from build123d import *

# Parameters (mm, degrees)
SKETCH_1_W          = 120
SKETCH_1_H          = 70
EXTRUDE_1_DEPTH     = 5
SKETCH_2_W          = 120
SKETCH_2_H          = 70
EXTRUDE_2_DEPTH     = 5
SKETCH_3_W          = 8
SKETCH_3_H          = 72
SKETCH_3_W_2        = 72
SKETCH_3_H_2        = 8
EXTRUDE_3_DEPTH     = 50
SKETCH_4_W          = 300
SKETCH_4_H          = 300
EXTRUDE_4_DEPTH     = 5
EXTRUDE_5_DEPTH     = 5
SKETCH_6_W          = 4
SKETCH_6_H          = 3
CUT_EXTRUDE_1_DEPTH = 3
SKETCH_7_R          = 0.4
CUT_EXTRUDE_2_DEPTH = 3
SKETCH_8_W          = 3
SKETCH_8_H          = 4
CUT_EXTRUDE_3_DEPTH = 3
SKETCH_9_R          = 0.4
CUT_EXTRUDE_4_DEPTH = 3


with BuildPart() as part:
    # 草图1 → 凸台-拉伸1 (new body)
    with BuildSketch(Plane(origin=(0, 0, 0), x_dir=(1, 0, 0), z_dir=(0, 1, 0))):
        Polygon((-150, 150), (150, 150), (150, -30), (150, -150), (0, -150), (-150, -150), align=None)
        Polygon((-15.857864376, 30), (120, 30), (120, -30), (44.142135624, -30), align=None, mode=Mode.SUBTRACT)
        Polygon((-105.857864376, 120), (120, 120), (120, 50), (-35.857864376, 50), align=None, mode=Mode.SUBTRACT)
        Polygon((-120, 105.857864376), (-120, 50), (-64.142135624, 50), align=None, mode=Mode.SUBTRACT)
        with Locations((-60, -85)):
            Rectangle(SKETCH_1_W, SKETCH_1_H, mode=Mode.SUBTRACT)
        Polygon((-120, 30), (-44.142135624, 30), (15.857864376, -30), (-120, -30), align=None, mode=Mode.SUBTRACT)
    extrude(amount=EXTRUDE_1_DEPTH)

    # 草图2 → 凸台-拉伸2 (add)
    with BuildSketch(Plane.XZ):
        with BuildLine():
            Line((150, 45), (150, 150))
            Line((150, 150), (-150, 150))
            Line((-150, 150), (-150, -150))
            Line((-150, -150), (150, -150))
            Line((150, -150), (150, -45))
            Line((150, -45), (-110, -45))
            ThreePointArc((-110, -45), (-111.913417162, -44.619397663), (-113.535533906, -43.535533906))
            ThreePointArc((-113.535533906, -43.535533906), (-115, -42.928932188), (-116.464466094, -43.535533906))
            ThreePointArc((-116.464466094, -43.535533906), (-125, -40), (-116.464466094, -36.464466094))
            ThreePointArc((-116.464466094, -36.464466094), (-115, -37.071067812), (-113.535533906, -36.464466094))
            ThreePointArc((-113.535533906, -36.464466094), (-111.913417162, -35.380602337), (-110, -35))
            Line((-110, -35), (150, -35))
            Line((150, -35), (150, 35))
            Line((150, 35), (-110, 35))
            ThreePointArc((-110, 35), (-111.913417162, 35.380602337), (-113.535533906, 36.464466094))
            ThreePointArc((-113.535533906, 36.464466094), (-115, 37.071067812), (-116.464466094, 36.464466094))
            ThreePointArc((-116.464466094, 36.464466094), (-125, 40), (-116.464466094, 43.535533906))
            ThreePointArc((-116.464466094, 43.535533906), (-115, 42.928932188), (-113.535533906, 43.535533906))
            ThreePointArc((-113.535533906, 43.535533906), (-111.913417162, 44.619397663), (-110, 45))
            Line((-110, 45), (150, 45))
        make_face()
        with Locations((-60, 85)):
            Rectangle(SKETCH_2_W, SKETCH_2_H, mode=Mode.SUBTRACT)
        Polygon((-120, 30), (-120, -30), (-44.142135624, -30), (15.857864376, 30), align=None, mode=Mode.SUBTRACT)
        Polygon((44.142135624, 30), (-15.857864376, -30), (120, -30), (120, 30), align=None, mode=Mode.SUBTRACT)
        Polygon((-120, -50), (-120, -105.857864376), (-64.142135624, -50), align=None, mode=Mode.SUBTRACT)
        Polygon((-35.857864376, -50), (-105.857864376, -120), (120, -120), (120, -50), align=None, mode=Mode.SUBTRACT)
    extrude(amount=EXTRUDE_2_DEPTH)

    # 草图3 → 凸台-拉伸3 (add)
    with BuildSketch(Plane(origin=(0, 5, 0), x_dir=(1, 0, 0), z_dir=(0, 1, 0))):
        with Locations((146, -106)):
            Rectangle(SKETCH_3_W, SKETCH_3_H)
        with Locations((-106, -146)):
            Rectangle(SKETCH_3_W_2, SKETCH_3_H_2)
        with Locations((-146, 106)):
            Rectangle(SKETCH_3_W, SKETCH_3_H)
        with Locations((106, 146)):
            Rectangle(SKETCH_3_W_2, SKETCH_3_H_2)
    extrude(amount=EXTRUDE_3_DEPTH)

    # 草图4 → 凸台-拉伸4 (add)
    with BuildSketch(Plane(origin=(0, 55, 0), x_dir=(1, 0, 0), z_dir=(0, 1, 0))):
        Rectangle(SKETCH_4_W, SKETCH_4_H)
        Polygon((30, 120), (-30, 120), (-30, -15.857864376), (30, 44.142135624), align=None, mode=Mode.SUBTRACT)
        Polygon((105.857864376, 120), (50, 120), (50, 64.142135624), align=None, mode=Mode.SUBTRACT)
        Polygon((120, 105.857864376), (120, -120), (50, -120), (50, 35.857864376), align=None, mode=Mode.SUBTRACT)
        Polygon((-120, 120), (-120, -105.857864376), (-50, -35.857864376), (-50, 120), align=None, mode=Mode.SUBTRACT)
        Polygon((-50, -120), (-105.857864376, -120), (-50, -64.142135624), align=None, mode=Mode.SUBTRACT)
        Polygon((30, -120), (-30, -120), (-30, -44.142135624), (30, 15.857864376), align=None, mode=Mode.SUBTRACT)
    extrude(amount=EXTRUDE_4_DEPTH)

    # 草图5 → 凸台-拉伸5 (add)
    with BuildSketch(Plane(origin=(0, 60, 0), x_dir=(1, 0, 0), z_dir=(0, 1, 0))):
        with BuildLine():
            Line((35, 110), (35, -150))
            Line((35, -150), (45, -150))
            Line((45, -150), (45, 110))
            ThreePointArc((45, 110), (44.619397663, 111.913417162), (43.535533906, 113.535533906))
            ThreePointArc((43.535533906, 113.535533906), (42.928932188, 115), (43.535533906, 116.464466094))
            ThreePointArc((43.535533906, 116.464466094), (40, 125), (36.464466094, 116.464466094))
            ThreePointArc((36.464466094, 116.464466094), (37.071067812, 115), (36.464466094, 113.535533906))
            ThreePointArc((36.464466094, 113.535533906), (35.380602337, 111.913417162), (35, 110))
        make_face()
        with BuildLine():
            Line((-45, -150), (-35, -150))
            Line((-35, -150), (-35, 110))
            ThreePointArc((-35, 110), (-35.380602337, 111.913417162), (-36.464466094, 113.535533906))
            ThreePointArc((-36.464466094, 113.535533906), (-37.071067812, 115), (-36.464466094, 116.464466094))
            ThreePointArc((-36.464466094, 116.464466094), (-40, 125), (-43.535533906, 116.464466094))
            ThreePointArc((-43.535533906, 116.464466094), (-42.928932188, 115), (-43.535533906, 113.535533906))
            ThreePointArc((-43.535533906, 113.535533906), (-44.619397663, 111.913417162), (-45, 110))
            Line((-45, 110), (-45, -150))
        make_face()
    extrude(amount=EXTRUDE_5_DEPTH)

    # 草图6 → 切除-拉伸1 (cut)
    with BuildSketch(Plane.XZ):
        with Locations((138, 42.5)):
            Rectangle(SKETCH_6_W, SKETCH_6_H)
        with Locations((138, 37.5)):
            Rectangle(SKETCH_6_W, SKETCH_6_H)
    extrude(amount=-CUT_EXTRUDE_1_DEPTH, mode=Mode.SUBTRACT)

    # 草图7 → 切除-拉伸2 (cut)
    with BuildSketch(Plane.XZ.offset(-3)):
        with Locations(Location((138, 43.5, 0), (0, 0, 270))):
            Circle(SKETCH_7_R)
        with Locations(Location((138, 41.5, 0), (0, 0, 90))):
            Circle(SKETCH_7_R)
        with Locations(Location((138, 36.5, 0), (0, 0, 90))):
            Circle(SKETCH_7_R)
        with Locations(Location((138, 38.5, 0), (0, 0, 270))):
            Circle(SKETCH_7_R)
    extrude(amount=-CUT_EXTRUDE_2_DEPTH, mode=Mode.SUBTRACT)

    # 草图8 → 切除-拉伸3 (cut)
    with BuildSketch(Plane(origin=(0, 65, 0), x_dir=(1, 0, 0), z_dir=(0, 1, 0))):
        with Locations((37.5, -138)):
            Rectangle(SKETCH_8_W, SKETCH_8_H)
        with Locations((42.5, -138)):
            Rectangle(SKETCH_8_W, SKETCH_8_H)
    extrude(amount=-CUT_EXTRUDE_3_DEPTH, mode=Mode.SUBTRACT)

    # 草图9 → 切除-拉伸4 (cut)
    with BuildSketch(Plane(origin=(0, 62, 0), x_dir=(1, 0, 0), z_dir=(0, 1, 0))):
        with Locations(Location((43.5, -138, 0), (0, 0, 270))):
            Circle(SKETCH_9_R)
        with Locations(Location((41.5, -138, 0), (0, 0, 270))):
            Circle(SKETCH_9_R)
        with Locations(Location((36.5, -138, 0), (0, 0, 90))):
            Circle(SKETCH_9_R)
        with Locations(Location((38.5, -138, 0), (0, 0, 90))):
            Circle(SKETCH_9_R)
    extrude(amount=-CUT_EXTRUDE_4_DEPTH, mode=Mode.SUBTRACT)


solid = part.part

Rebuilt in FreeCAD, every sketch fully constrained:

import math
import FreeCAD as App
import Part
import Sketcher

V = App.Vector
Q = App.Units.Quantity


def add_polygon(sketch, points):
    """Adds a closed chain of lines whose ends are joined by coincident constraints."""
    first, n = sketch.GeometryCount, len(points)
    for a, b in zip(points, points[1:] + points[:1]):
        sketch.addGeometry(Part.LineSegment(App.Vector(*a, 0), App.Vector(*b, 0)), False)
    for i in range(n):
        sketch.addConstraint(Sketcher.Constraint("Coincident", first + i, 2, first + (i + 1) % n, 1))

doc = App.newDocument("Part")
params = doc.addObject("Spreadsheet::Sheet", "Params")
for row, (alias, value) in enumerate([
    ("sketch1_width", "300 mm"),
    ("sketch1_width2", "120 mm"),
    ("sketch1_height", "70 mm"),
    ("sketch1_height2", "60 mm"),
    ("pad1_length", "5 mm"),
    ("sketch2_radius", "5 mm"),
    ("sketch2_width", "300 mm"),
    ("sketch2_width2", "260 mm"),
    ("sketch2_width3", "120 mm"),
    ("sketch2_height", "105 mm"),
    ("pad2_length", "5 mm"),
    ("sketch3_width", "8 mm"),
    ("sketch3_width2", "72 mm"),
    ("pad3_length", "50 mm"),
    ("sketch4_width", "300 mm"),
    ("sketch4_width2", "60 mm"),
    ("sketch4_width3", "70 mm"),
    ("pad4_length", "5 mm"),
    ("sketch5_radius", "5 mm"),
    ("sketch5_height", "260 mm"),
    ("pad5_length", "5 mm"),
    ("sketch6_width", "4 mm"),
    ("sketch6_height", "3 mm"),
    ("pocket1_length", "3 mm"),
    ("sketch7_diameter", "0.8 mm"),
    ("pocket2_length", "3 mm"),
    ("sketch8_width", "3 mm"),
    ("sketch8_height", "4 mm"),
    ("pocket3_length", "3 mm"),
    ("sketch9_diameter", "0.8 mm"),
    ("pocket4_length", "3 mm"),
], start=1):
    params.set(f"A{row}", alias)
    params.set(f"B{row}", "=" + value)
    params.setAlias(f"B{row}", alias)

body = doc.addObject("PartDesign::Body", "Body")

sketch1 = doc.addObject("Sketcher::SketchObject", "Sketch")
body.addObject(sketch1)
sketch1.AttachmentSupport = (doc.XZ_Plane, [""])
sketch1.MapMode = "FlatFace"
add_polygon(sketch1, [(150, -150), (-150, -150), (-150, 150), (150, 150)])
add_polygon(sketch1, [(-120, 120), (-120, 50), (0, 50), (0, 120)])
add_polygon(sketch1, [(-16, -30), (120, -30), (120, 30), (44, 30)])
add_polygon(sketch1, [(-106, -120), (120, -120), (120, -50), (-36, -50)])
add_polygon(sketch1, [(-120, -30), (-44, -30), (16, 30), (-120, 30)])
add_polygon(sketch1, [(-120, -106), (-64, -50), (-120, -50)])
sketch1.addConstraint(Sketcher.Constraint("Horizontal", 0))
sketch1.addConstraint(Sketcher.Constraint("Vertical", 1))
sketch1.addConstraint(Sketcher.Constraint("Horizontal", 2))
sketch1.addConstraint(Sketcher.Constraint("Vertical", 3))
sketch1.addConstraint(Sketcher.Constraint("Vertical", 4))
sketch1.addConstraint(Sketcher.Constraint("Horizontal", 5))
sketch1.addConstraint(Sketcher.Constraint("Vertical", 6))
sketch1.addConstraint(Sketcher.Constraint("Horizontal", 7))
sketch1.addConstraint(Sketcher.Constraint("Horizontal", 8))
sketch1.addConstraint(Sketcher.Constraint("Vertical", 9))
sketch1.addConstraint(Sketcher.Constraint("Horizontal", 10))
sketch1.addConstraint(Sketcher.Constraint("Horizontal", 12))
sketch1.addConstraint(Sketcher.Constraint("Vertical", 13))
sketch1.addConstraint(Sketcher.Constraint("Horizontal", 14))
sketch1.addConstraint(Sketcher.Constraint("Horizontal", 16))
sketch1.addConstraint(Sketcher.Constraint("Horizontal", 18))
sketch1.addConstraint(Sketcher.Constraint("Vertical", 19))
sketch1.addConstraint(Sketcher.Constraint("Horizontal", 21))
sketch1.addConstraint(Sketcher.Constraint("Vertical", 22))
sketch1.addConstraint(Sketcher.Constraint("Symmetric", 0, 2, 2, 2, -1, 1))
sketch1.addConstraint(Sketcher.Constraint("Symmetric", 7, 2, 12, 2, -1, 1))
sketch1.addConstraint(Sketcher.Constraint("Symmetric", 10, 2, 16, 2, -1, 1))
sketch1.addConstraint(Sketcher.Constraint("Symmetric", 11, 2, 17, 2, -1, 1))
sketch1.addConstraint(Sketcher.Constraint("Symmetric", 9, 2, 18, 2, -2))
sketch1.addConstraint(Sketcher.Constraint("Symmetric", 13, 2, 21, 2, -2))
sketch1.addConstraint(Sketcher.Constraint("PointOnObject", 5, 2, -2))
sketch1.addConstraint(Sketcher.Constraint("Parallel", 11, 15))
sketch1.addConstraint(Sketcher.Constraint("Parallel", 17, 20))
sketch1.addConstraint(Sketcher.Constraint("Vertical", 9, 2, 12, 2))
sketch1.addConstraint(Sketcher.Constraint("Equal", 2, 1))
sketch1.addConstraint(Sketcher.Constraint("Equal", 6, 13))
sketch1.addConstraint(Sketcher.Constraint("Equal", 21, 22))
sketch1.addConstraint(Sketcher.Constraint("DistanceX", 0, 2, 0, 1, Q("300 mm")))
sketch1.addConstraint(Sketcher.Constraint("DistanceX", 5, 1, 5, 2, Q("120 mm")))
sketch1.addConstraint(Sketcher.Constraint("DistanceY", 4, 2, 4, 1, Q("70 mm")))
sketch1.addConstraint(Sketcher.Constraint("DistanceY", 9, 1, 9, 2, Q("60 mm")))
sketch1.addConstraint(Sketcher.Constraint("DistanceY", -1, 1, 4, 2, Q("50 mm")))
sketch1.addConstraint(Sketcher.Constraint("DistanceX", 14, 2, 11, 2, Q("20 mm")))
sketch1.addConstraint(Sketcher.Constraint("DistanceX", 20, 2, 16, 2, Q("20 mm")))
sketch1.addConstraint(Sketcher.Constraint("Distance", 20, Q("78.994949 mm")))
sketch1.setExpression("Constraints[55]", "Params.sketch1_width")
sketch1.setExpression("Constraints[56]", "Params.sketch1_width2")
sketch1.setExpression("Constraints[57]", "Params.sketch1_height")
sketch1.setExpression("Constraints[58]", "Params.sketch1_height2")
pad1 = doc.addObject("PartDesign::Pad", "Pad")
body.addObject(pad1)
pad1.Profile = sketch1
pad1.setExpression("Length", "Params.pad1_length")
pad1.Reversed = True

sketch2 = doc.addObject("Sketcher::SketchObject", "Sketch001")
body.addObject(sketch2)
sketch2.AttachmentSupport = (doc.XZ_Plane, [""])
sketch2.MapMode = "FlatFace"
sketch2.addGeometry(Part.LineSegment(V(150, 45, 0), V(150, 150, 0)), False)
sketch2.addGeometry(Part.LineSegment(V(150, 150, 0), V(-150, 150, 0)), False)
sketch2.addGeometry(Part.LineSegment(V(-150, 150, 0), V(-150, -150, 0)), False)
sketch2.addGeometry(Part.LineSegment(V(-150, -150, 0), V(150, -150, 0)), False)
sketch2.addGeometry(Part.LineSegment(V(150, -150, 0), V(150, -45, 0)), False)
sketch2.addGeometry(Part.LineSegment(V(150, -45, 0), V(-110, -45, 0)), False)
sketch2.addGeometry(Part.ArcOfCircle(Part.Circle(V(-110, -40, 0), V(0, 0, 1), 5), math.radians(-135), math.radians(-90)), False)
sketch2.addGeometry(Part.ArcOfCircle(Part.Circle(V(-115, -45, 0), V(0, 0, 1), 2.1), math.radians(45), math.radians(135)), False)
sketch2.addGeometry(Part.ArcOfCircle(Part.Circle(V(-120, -40, 0), V(0, 0, 1), 5), math.radians(45), math.radians(315)), False)
sketch2.addGeometry(Part.ArcOfCircle(Part.Circle(V(-115, -35, 0), V(0, 0, 1), 2.1), math.radians(-135), math.radians(-45)), False)
sketch2.addGeometry(Part.ArcOfCircle(Part.Circle(V(-110, -40, 0), V(0, 0, 1), 5), math.radians(90), math.radians(135)), False)
sketch2.addGeometry(Part.LineSegment(V(-110, -35, 0), V(150, -35, 0)), False)
sketch2.addGeometry(Part.LineSegment(V(150, -35, 0), V(150, 35, 0)), False)
sketch2.addGeometry(Part.LineSegment(V(150, 35, 0), V(-110, 35, 0)), False)
sketch2.addGeometry(Part.ArcOfCircle(Part.Circle(V(-110, 40, 0), V(0, 0, 1), 5), math.radians(-135), math.radians(-90)), False)
sketch2.addGeometry(Part.ArcOfCircle(Part.Circle(V(-115, 35, 0), V(0, 0, 1), 2.1), math.radians(45), math.radians(135)), False)
sketch2.addGeometry(Part.ArcOfCircle(Part.Circle(V(-120, 40, 0), V(0, 0, 1), 5), math.radians(45), math.radians(315)), False)
sketch2.addGeometry(Part.ArcOfCircle(Part.Circle(V(-115, 45, 0), V(0, 0, 1), 2.1), math.radians(-135), math.radians(-45)), False)
sketch2.addGeometry(Part.ArcOfCircle(Part.Circle(V(-110, 40, 0), V(0, 0, 1), 5), math.radians(90), math.radians(135)), False)
sketch2.addGeometry(Part.LineSegment(V(-110, 45, 0), V(150, 45, 0)), False)
add_polygon(sketch2, [(-120, -105.9), (-120, -50), (-64.1, -50)])
add_polygon(sketch2, [(-105.9, -120), (-35.9, -50), (120, -50), (120, -120)])
add_polygon(sketch2, [(-120, -30), (-120, 30), (15.9, 30), (-44.1, -30)])
add_polygon(sketch2, [(0, 50), (-120, 50), (-120, 120), (0, 120)])
add_polygon(sketch2, [(-15.9, -30), (44.1, 30), (120, 30), (120, -30)])
sketch2.addConstraint(Sketcher.Constraint("Coincident", 0, 2, 1, 1))
sketch2.addConstraint(Sketcher.Constraint("Coincident", 1, 2, 2, 1))
sketch2.addConstraint(Sketcher.Constraint("Coincident", 2, 2, 3, 1))
sketch2.addConstraint(Sketcher.Constraint("Coincident", 3, 2, 4, 1))
sketch2.addConstraint(Sketcher.Constraint("Coincident", 4, 2, 5, 1))
sketch2.addConstraint(Sketcher.Constraint("Tangent", 5, 2, 6, 2))
sketch2.addConstraint(Sketcher.Constraint("Tangent", 6, 1, 7, 1))
sketch2.addConstraint(Sketcher.Constraint("Tangent", 7, 2, 8, 2))
sketch2.addConstraint(Sketcher.Constraint("Tangent", 8, 1, 9, 1))
sketch2.addConstraint(Sketcher.Constraint("Tangent", 9, 2, 10, 2))
sketch2.addConstraint(Sketcher.Constraint("Tangent", 10, 1, 11, 1))
sketch2.addConstraint(Sketcher.Constraint("Coincident", 11, 2, 12, 1))
sketch2.addConstraint(Sketcher.Constraint("Coincident", 12, 2, 13, 1))
sketch2.addConstraint(Sketcher.Constraint("Tangent", 13, 2, 14, 2))
sketch2.addConstraint(Sketcher.Constraint("Tangent", 14, 1, 15, 1))
sketch2.addConstraint(Sketcher.Constraint("Tangent", 15, 2, 16, 2))
sketch2.addConstraint(Sketcher.Constraint("Tangent", 16, 1, 17, 1))
sketch2.addConstraint(Sketcher.Constraint("Tangent", 17, 2, 18, 2))
sketch2.addConstraint(Sketcher.Constraint("Tangent", 18, 1, 19, 1))
sketch2.addConstraint(Sketcher.Constraint("Coincident", 19, 2, 0, 1))
sketch2.addConstraint(Sketcher.Constraint("Vertical", 0))
sketch2.addConstraint(Sketcher.Constraint("Horizontal", 1))
sketch2.addConstraint(Sketcher.Constraint("Vertical", 2))
sketch2.addConstraint(Sketcher.Constraint("Horizontal", 3))
sketch2.addConstraint(Sketcher.Constraint("Vertical", 4))
sketch2.addConstraint(Sketcher.Constraint("Horizontal", 5))
sketch2.addConstraint(Sketcher.Constraint("Horizontal", 11))
sketch2.addConstraint(Sketcher.Constraint("Vertical", 12))
sketch2.addConstraint(Sketcher.Constraint("Horizontal", 13))
sketch2.addConstraint(Sketcher.Constraint("Horizontal", 19))
sketch2.addConstraint(Sketcher.Constraint("Vertical", 20))
sketch2.addConstraint(Sketcher.Constraint("Horizontal", 21))
sketch2.addConstraint(Sketcher.Constraint("Horizontal", 24))
sketch2.addConstraint(Sketcher.Constraint("Vertical", 25))
sketch2.addConstraint(Sketcher.Constraint("Horizontal", 26))
sketch2.addConstraint(Sketcher.Constraint("Vertical", 27))
sketch2.addConstraint(Sketcher.Constraint("Horizontal", 28))
sketch2.addConstraint(Sketcher.Constraint("Horizontal", 30))
sketch2.addConstraint(Sketcher.Constraint("Horizontal", 31))
sketch2.addConstraint(Sketcher.Constraint("Vertical", 32))
sketch2.addConstraint(Sketcher.Constraint("Horizontal", 33))
sketch2.addConstraint(Sketcher.Constraint("Vertical", 34))
sketch2.addConstraint(Sketcher.Constraint("Horizontal", 36))
sketch2.addConstraint(Sketcher.Constraint("Vertical", 37))
sketch2.addConstraint(Sketcher.Constraint("Horizontal", 38))
sketch2.addConstraint(Sketcher.Constraint("Coincident", 10, 3, 6, 3))
sketch2.addConstraint(Sketcher.Constraint("Coincident", 18, 3, 14, 3))
sketch2.addConstraint(Sketcher.Constraint("Equal", 6, 8))
sketch2.addConstraint(Sketcher.Constraint("Equal", 7, 9))
sketch2.addConstraint(Sketcher.Constraint("Equal", 8, 10))
sketch2.addConstraint(Sketcher.Constraint("Equal", 10, 14))
sketch2.addConstraint(Sketcher.Constraint("Equal", 9, 15))
sketch2.addConstraint(Sketcher.Constraint("Equal", 14, 16))
sketch2.addConstraint(Sketcher.Constraint("Equal", 15, 17))
sketch2.addConstraint(Sketcher.Constraint("Equal", 16, 18))
sketch2.addConstraint(Sketcher.Constraint("Symmetric", 0, 2, 2, 2, -1, 1))
sketch2.addConstraint(Sketcher.Constraint("Symmetric", 24, 2, 31, 2, -1, 1))
sketch2.addConstraint(Sketcher.Constraint("Symmetric", 29, 2, 35, 2, -1, 1))
sketch2.addConstraint(Sketcher.Constraint("Symmetric", 27, 2, 37, 2, -1, 1))
sketch2.addConstraint(Sketcher.Constraint("Symmetric", 20, 2, 24, 2, -2))
sketch2.addConstraint(Sketcher.Constraint("Symmetric", 6, 3, 14, 3, -1))
sketch2.addConstraint(Sketcher.Constraint("Symmetric", 8, 3, 16, 3, -1))
sketch2.addConstraint(Sketcher.Constraint("PointOnObject", 33, 2, -2))
sketch2.addConstraint(Sketcher.Constraint("Parallel", 22, 23))
sketch2.addConstraint(Sketcher.Constraint("Parallel", 23, 29))
sketch2.addConstraint(Sketcher.Constraint("Parallel", 29, 35))
sketch2.addConstraint(Sketcher.Constraint("Horizontal", 6, 3, 8, 3))
sketch2.addConstraint(Sketcher.Constraint("Horizontal", 7, 3, 4, 2))
sketch2.addConstraint(Sketcher.Constraint("Horizontal", 28, 2, 35, 2))
sketch2.addConstraint(Sketcher.Constraint("Vertical", 0, 2, 3, 2))
sketch2.addConstraint(Sketcher.Constraint("Vertical", 4, 2, 11, 2))
sketch2.addConstraint(Sketcher.Constraint("Vertical", 16, 3, 20, 2))
sketch2.addConstraint(Sketcher.Constraint("Vertical", 22, 2, 27, 2))
sketch2.addConstraint(Sketcher.Constraint("Equal", 3, 2))
sketch2.addConstraint(Sketcher.Constraint("Equal", 21, 20))
sketch2.addConstraint(Sketcher.Constraint("Equal", 12, 25))
sketch2.addConstraint(Sketcher.Constraint("Equal", 25, 32))
sketch2.addConstraint(Sketcher.Constraint("Radius", 6, Q("5 mm")))
sketch2.addConstraint(Sketcher.Constraint("DistanceX", 1, 2, 1, 1, Q("300 mm")))
sketch2.addConstraint(Sketcher.Constraint("DistanceX", 5, 2, 5, 1, Q("260 mm")))
sketch2.addConstraint(Sketcher.Constraint("DistanceX", 31, 2, 31, 1, Q("120 mm")))
sketch2.addConstraint(Sketcher.Constraint("DistanceY", 0, 1, 0, 2, Q("105 mm")))
sketch2.addConstraint(Sketcher.Constraint("DistanceY", 27, 1, 27, 2, Q("60 mm")))
sketch2.addConstraint(Sketcher.Constraint("DistanceY", 20, 2, -1, 1, Q("50 mm")))
sketch2.addConstraint(Sketcher.Constraint("DistanceX", 21, 2, 28, 2, Q("80 mm")))
sketch2.addConstraint(Sketcher.Constraint("DistanceX", 23, 2, 38, 2, Q("20 mm")))
sketch2.addConstraint(Sketcher.Constraint("DistanceX", 6, 1, 21, 2, Q("49.393398 mm")))
sketch2.setExpression("Constraints[96]", "Params.sketch2_radius")
sketch2.setExpression("Constraints[97]", "Params.sketch2_width")
sketch2.setExpression("Constraints[98]", "Params.sketch2_width2")
sketch2.setExpression("Constraints[99]", "Params.sketch2_width3")
sketch2.setExpression("Constraints[100]", "Params.sketch2_height")
pad2 = doc.addObject("PartDesign::Pad", "Pad001")
body.addObject(pad2)
pad2.Profile = sketch2
pad2.setExpression("Length", "Params.pad2_length")

sketch3 = doc.addObject("Sketcher::SketchObject", "Sketch002")
body.addObject(sketch3)
sketch3.AttachmentSupport = (doc.XZ_Plane, [""])
sketch3.MapMode = "FlatFace"
sketch3.AttachmentOffset = App.Placement(V(0, 0, -5), App.Rotation())
add_polygon(sketch3, [(142, 70), (142, 142), (150, 142), (150, 70)])
add_polygon(sketch3, [(-142, 142), (-142, 150), (-70, 150), (-70, 142)])
add_polygon(sketch3, [(-150, -142), (-150, -70), (-142, -70), (-142, -142)])
add_polygon(sketch3, [(70, -150), (70, -142), (142, -142), (142, -150)])
sketch3.addConstraint(Sketcher.Constraint("Vertical", 0))
sketch3.addConstraint(Sketcher.Constraint("Horizontal", 1))
sketch3.addConstraint(Sketcher.Constraint("Vertical", 2))
sketch3.addConstraint(Sketcher.Constraint("Horizontal", 3))
sketch3.addConstraint(Sketcher.Constraint("Vertical", 4))
sketch3.addConstraint(Sketcher.Constraint("Horizontal", 5))
sketch3.addConstraint(Sketcher.Constraint("Vertical", 6))
sketch3.addConstraint(Sketcher.Constraint("Horizontal", 7))
sketch3.addConstraint(Sketcher.Constraint("Vertical", 8))
sketch3.addConstraint(Sketcher.Constraint("Horizontal", 9))
sketch3.addConstraint(Sketcher.Constraint("Vertical", 10))
sketch3.addConstraint(Sketcher.Constraint("Horizontal", 11))
sketch3.addConstraint(Sketcher.Constraint("Vertical", 12))
sketch3.addConstraint(Sketcher.Constraint("Horizontal", 13))
sketch3.addConstraint(Sketcher.Constraint("Vertical", 14))
sketch3.addConstraint(Sketcher.Constraint("Horizontal", 15))
sketch3.addConstraint(Sketcher.Constraint("Symmetric", 2, 2, 8, 2, -1, 1))
sketch3.addConstraint(Sketcher.Constraint("Symmetric", 0, 2, 10, 2, -1, 1))
sketch3.addConstraint(Sketcher.Constraint("Symmetric", 6, 2, 12, 2, -1, 1))
sketch3.addConstraint(Sketcher.Constraint("Symmetric", 4, 2, 14, 2, -1, 1))
sketch3.addConstraint(Sketcher.Constraint("Symmetric", 0, 2, 7, 2, -2))
sketch3.addConstraint(Sketcher.Constraint("Equal", 15, 0))
sketch3.addConstraint(Sketcher.Constraint("Equal", 11, 4))
sketch3.addConstraint(Sketcher.Constraint("DistanceX", 1, 1, 1, 2, Q("8 mm")))
sketch3.addConstraint(Sketcher.Constraint("DistanceX", 5, 1, 5, 2, Q("72 mm")))
sketch3.addConstraint(Sketcher.Constraint("DistanceX", -1, 1, 0, 2, Q("142 mm")))
sketch3.addConstraint(Sketcher.Constraint("DistanceY", -1, 1, 0, 2, Q("142 mm")))
sketch3.setExpression("Constraints[39]", "Params.sketch3_width")
sketch3.setExpression("Constraints[40]", "Params.sketch3_width2")
pad3 = doc.addObject("PartDesign::Pad", "Pad002")
body.addObject(pad3)
pad3.Profile = sketch3
pad3.setExpression("Length", "Params.pad3_length")
pad3.Reversed = True

sketch4 = doc.addObject("Sketcher::SketchObject", "Sketch003")
body.addObject(sketch4)
sketch4.AttachmentSupport = (doc.XZ_Plane, [""])
sketch4.MapMode = "FlatFace"
sketch4.AttachmentOffset = App.Placement(V(0, 0, -55), App.Rotation())
add_polygon(sketch4, [(-150, -150), (-150, 150), (150, 150), (150, -150)])
add_polygon(sketch4, [(-50, 64), (-50, 120), (-106, 120)])
add_polygon(sketch4, [(30, -16), (30, 120), (-30, 120), (-30, 44)])
add_polygon(sketch4, [(50, -36), (120, -106), (120, 120), (50, 120)])
add_polygon(sketch4, [(-120, 106), (-120, -120), (-50, -120), (-50, 36)])
add_polygon(sketch4, [(-30, -120), (30, -120), (30, -44), (-30, 16)])
add_polygon(sketch4, [(50, -120), (106, -120), (50, -64)])
sketch4.addConstraint(Sketcher.Constraint("Vertical", 0))
sketch4.addConstraint(Sketcher.Constraint("Horizontal", 1))
sketch4.addConstraint(Sketcher.Constraint("Vertical", 2))
sketch4.addConstraint(Sketcher.Constraint("Horizontal", 3))
sketch4.addConstraint(Sketcher.Constraint("Vertical", 4))
sketch4.addConstraint(Sketcher.Constraint("Horizontal", 5))
sketch4.addConstraint(Sketcher.Constraint("Vertical", 7))
sketch4.addConstraint(Sketcher.Constraint("Horizontal", 8))
sketch4.addConstraint(Sketcher.Constraint("Vertical", 9))
sketch4.addConstraint(Sketcher.Constraint("Vertical", 12))
sketch4.addConstraint(Sketcher.Constraint("Horizontal", 13))
sketch4.addConstraint(Sketcher.Constraint("Vertical", 14))
sketch4.addConstraint(Sketcher.Constraint("Vertical", 15))
sketch4.addConstraint(Sketcher.Constraint("Horizontal", 16))
sketch4.addConstraint(Sketcher.Constraint("Vertical", 17))
sketch4.addConstraint(Sketcher.Constraint("Horizontal", 19))
sketch4.addConstraint(Sketcher.Constraint("Vertical", 20))
sketch4.addConstraint(Sketcher.Constraint("Vertical", 22))
sketch4.addConstraint(Sketcher.Constraint("Horizontal", 23))
sketch4.addConstraint(Sketcher.Constraint("Vertical", 25))
sketch4.addConstraint(Sketcher.Constraint("Symmetric", 0, 2, 2, 2, -1, 1))
sketch4.addConstraint(Sketcher.Constraint("Symmetric", 12, 2, 15, 2, -1, 1))
sketch4.addConstraint(Sketcher.Constraint("Symmetric", 14, 2, 17, 2, -1, 1))
sketch4.addConstraint(Sketcher.Constraint("Symmetric", 8, 2, 19, 2, -1, 1))
sketch4.addConstraint(Sketcher.Constraint("Symmetric", 10, 2, 21, 2, -1, 1))
sketch4.addConstraint(Sketcher.Constraint("Symmetric", 5, 2, 23, 2, -1, 1))
sketch4.addConstraint(Sketcher.Constraint("Symmetric", 6, 2, 24, 2, -1, 1))
sketch4.addConstraint(Sketcher.Constraint("Symmetric", 4, 2, 13, 2, -2))
sketch4.addConstraint(Sketcher.Constraint("Parallel", 6, 10))
sketch4.addConstraint(Sketcher.Constraint("Parallel", 10, 11))
sketch4.addConstraint(Sketcher.Constraint("Parallel", 11, 18))
sketch4.addConstraint(Sketcher.Constraint("Parallel", 18, 21))
sketch4.addConstraint(Sketcher.Constraint("Horizontal", 5, 2, 7, 2))
sketch4.addConstraint(Sketcher.Constraint("Vertical", 10, 2, 19, 2))
sketch4.addConstraint(Sketcher.Constraint("Equal", 3, 0))
sketch4.addConstraint(Sketcher.Constraint("Equal", 23, 4))
sketch4.addConstraint(Sketcher.Constraint("DistanceX", 1, 1, 1, 2, Q("300 mm")))
sketch4.addConstraint(Sketcher.Constraint("DistanceX", 8, 2, 8, 1, Q("60 mm")))
sketch4.addConstraint(Sketcher.Constraint("DistanceX", 13, 2, 13, 1, Q("70 mm")))
sketch4.addConstraint(Sketcher.Constraint("DistanceX", 4, 2, -1, 1, Q("50 mm")))
sketch4.addConstraint(Sketcher.Constraint("DistanceY", -1, 1, 4, 2, Q("120 mm")))
sketch4.addConstraint(Sketcher.Constraint("DistanceY", 9, 2, 6, 2, Q("20 mm")))
sketch4.addConstraint(Sketcher.Constraint("DistanceY", 11, 2, 10, 2, Q("90 mm")))
sketch4.addConstraint(Sketcher.Constraint("Distance", 6, Q("78.994949 mm")))
sketch4.setExpression("Constraints[62]", "Params.sketch4_width")
sketch4.setExpression("Constraints[63]", "Params.sketch4_width2")
sketch4.setExpression("Constraints[64]", "Params.sketch4_width3")
pad4 = doc.addObject("PartDesign::Pad", "Pad003")
body.addObject(pad4)
pad4.Profile = sketch4
pad4.setExpression("Length", "Params.pad4_length")
pad4.Reversed = True

sketch5 = doc.addObject("Sketcher::SketchObject", "Sketch004")
body.addObject(sketch5)
sketch5.AttachmentSupport = (doc.XZ_Plane, [""])
sketch5.MapMode = "FlatFace"
sketch5.AttachmentOffset = App.Placement(V(0, 0, -60), App.Rotation())
sketch5.addGeometry(Part.LineSegment(V(35, -110, 0), V(35, 150, 0)), False)
sketch5.addGeometry(Part.LineSegment(V(35, 150, 0), V(45, 150, 0)), False)
sketch5.addGeometry(Part.LineSegment(V(45, 150, 0), V(45, -110, 0)), False)
sketch5.addGeometry(Part.ArcOfCircle(Part.Circle(V(40, -110, 0), V(0, 0, 1), 5), math.radians(-45), math.radians(0)), False)
sketch5.addGeometry(Part.ArcOfCircle(Part.Circle(V(45, -115, 0), V(0, 0, 1), 2.1), math.radians(135), math.radians(225)), False)
sketch5.addGeometry(Part.ArcOfCircle(Part.Circle(V(40, -120, 0), V(0, 0, 1), 5), math.radians(135), math.radians(405)), False)
sketch5.addGeometry(Part.ArcOfCircle(Part.Circle(V(35, -115, 0), V(0, 0, 1), 2.1), math.radians(-45), math.radians(45)), False)
sketch5.addGeometry(Part.ArcOfCircle(Part.Circle(V(40, -110, 0), V(0, 0, 1), 5), math.radians(180), math.radians(225)), False)
sketch5.addGeometry(Part.LineSegment(V(-45, 150, 0), V(-35, 150, 0)), False)
sketch5.addGeometry(Part.LineSegment(V(-35, 150, 0), V(-35, -110, 0)), False)
sketch5.addGeometry(Part.ArcOfCircle(Part.Circle(V(-40, -110, 0), V(0, 0, 1), 5), math.radians(-45), math.radians(0)), False)
sketch5.addGeometry(Part.ArcOfCircle(Part.Circle(V(-35, -115, 0), V(0, 0, 1), 2.1), math.radians(135), math.radians(225)), False)
sketch5.addGeometry(Part.ArcOfCircle(Part.Circle(V(-40, -120, 0), V(0, 0, 1), 5), math.radians(135), math.radians(405)), False)
sketch5.addGeometry(Part.ArcOfCircle(Part.Circle(V(-45, -115, 0), V(0, 0, 1), 2.1), math.radians(-45), math.radians(45)), False)
sketch5.addGeometry(Part.ArcOfCircle(Part.Circle(V(-40, -110, 0), V(0, 0, 1), 5), math.radians(180), math.radians(225)), False)
sketch5.addGeometry(Part.LineSegment(V(-45, -110, 0), V(-45, 150, 0)), False)
sketch5.addConstraint(Sketcher.Constraint("Coincident", 0, 2, 1, 1))
sketch5.addConstraint(Sketcher.Constraint("Coincident", 1, 2, 2, 1))
sketch5.addConstraint(Sketcher.Constraint("Tangent", 2, 2, 3, 2))
sketch5.addConstraint(Sketcher.Constraint("Tangent", 3, 1, 4, 1))
sketch5.addConstraint(Sketcher.Constraint("Tangent", 4, 2, 5, 2))
sketch5.addConstraint(Sketcher.Constraint("Tangent", 5, 1, 6, 1))
sketch5.addConstraint(Sketcher.Constraint("Tangent", 6, 2, 7, 2))
sketch5.addConstraint(Sketcher.Constraint("Tangent", 7, 1, 0, 1))
sketch5.addConstraint(Sketcher.Constraint("Coincident", 8, 2, 9, 1))
sketch5.addConstraint(Sketcher.Constraint("Tangent", 9, 2, 10, 2))
sketch5.addConstraint(Sketcher.Constraint("Tangent", 10, 1, 11, 1))
sketch5.addConstraint(Sketcher.Constraint("Tangent", 11, 2, 12, 2))
sketch5.addConstraint(Sketcher.Constraint("Tangent", 12, 1, 13, 1))
sketch5.addConstraint(Sketcher.Constraint("Tangent", 13, 2, 14, 2))
sketch5.addConstraint(Sketcher.Constraint("Tangent", 14, 1, 15, 1))
sketch5.addConstraint(Sketcher.Constraint("Coincident", 15, 2, 8, 1))
sketch5.addConstraint(Sketcher.Constraint("Vertical", 0))
sketch5.addConstraint(Sketcher.Constraint("Horizontal", 1))
sketch5.addConstraint(Sketcher.Constraint("Vertical", 2))
sketch5.addConstraint(Sketcher.Constraint("Horizontal", 8))
sketch5.addConstraint(Sketcher.Constraint("Vertical", 9))
sketch5.addConstraint(Sketcher.Constraint("Vertical", 15))
sketch5.addConstraint(Sketcher.Constraint("Coincident", 7, 3, 3, 3))
sketch5.addConstraint(Sketcher.Constraint("Coincident", 14, 3, 10, 3))
sketch5.addConstraint(Sketcher.Constraint("Equal", 3, 5))
sketch5.addConstraint(Sketcher.Constraint("Equal", 4, 6))
sketch5.addConstraint(Sketcher.Constraint("Equal", 5, 7))
sketch5.addConstraint(Sketcher.Constraint("Equal", 7, 10))
sketch5.addConstraint(Sketcher.Constraint("Equal", 6, 11))
sketch5.addConstraint(Sketcher.Constraint("Equal", 10, 12))
sketch5.addConstraint(Sketcher.Constraint("Equal", 11, 13))
sketch5.addConstraint(Sketcher.Constraint("Equal", 12, 14))
sketch5.addConstraint(Sketcher.Constraint("Symmetric", 3, 3, 10, 3, -2))
sketch5.addConstraint(Sketcher.Constraint("Symmetric", 5, 3, 12, 3, -2))
sketch5.addConstraint(Sketcher.Constraint("Horizontal", 4, 3, 6, 3))
sketch5.addConstraint(Sketcher.Constraint("Horizontal", 1, 2, 8, 2))
sketch5.addConstraint(Sketcher.Constraint("Vertical", 6, 3, 0, 2))
sketch5.addConstraint(Sketcher.Constraint("Radius", 3, Q("5 mm")))
sketch5.addConstraint(Sketcher.Constraint("DistanceY", 0, 1, 0, 2, Q("260 mm")))
sketch5.addConstraint(Sketcher.Constraint("DistanceX", -1, 1, 3, 3, Q("40 mm")))
sketch5.addConstraint(Sketcher.Constraint("DistanceY", 3, 3, -1, 1, Q("110 mm")))
sketch5.addConstraint(Sketcher.Constraint("DistanceY", 4, 3, -1, 1, Q("115 mm")))
sketch5.setExpression("Constraints[37]", "Params.sketch5_radius")
sketch5.setExpression("Constraints[38]", "Params.sketch5_height")
pad5 = doc.addObject("PartDesign::Pad", "Pad004")
body.addObject(pad5)
pad5.Profile = sketch5
pad5.setExpression("Length", "Params.pad5_length")
pad5.Reversed = True

sketch6 = doc.addObject("Sketcher::SketchObject", "Sketch005")
body.addObject(sketch6)
sketch6.AttachmentSupport = (doc.XZ_Plane, [""])
sketch6.MapMode = "FlatFace"
add_polygon(sketch6, [(136, 44), (136, 41), (140, 41), (140, 44)])
add_polygon(sketch6, [(136, 39), (136, 36), (140, 36), (140, 39)])
sketch6.addConstraint(Sketcher.Constraint("Vertical", 0))
sketch6.addConstraint(Sketcher.Constraint("Horizontal", 1))
sketch6.addConstraint(Sketcher.Constraint("Vertical", 2))
sketch6.addConstraint(Sketcher.Constraint("Horizontal", 3))
sketch6.addConstraint(Sketcher.Constraint("Vertical", 4))
sketch6.addConstraint(Sketcher.Constraint("Horizontal", 5))
sketch6.addConstraint(Sketcher.Constraint("Vertical", 6))
sketch6.addConstraint(Sketcher.Constraint("Horizontal", 7))
sketch6.addConstraint(Sketcher.Constraint("Vertical", 3, 2, 4, 2))
sketch6.addConstraint(Sketcher.Constraint("Vertical", 2, 2, 5, 2))
sketch6.addConstraint(Sketcher.Constraint("Equal", 2, 4))
sketch6.addConstraint(Sketcher.Constraint("DistanceX", 1, 1, 1, 2, Q("4 mm")))
sketch6.addConstraint(Sketcher.Constraint("DistanceY", 0, 2, 0, 1, Q("3 mm")))
sketch6.addConstraint(Sketcher.Constraint("DistanceX", -1, 1, 0, 2, Q("136 mm")))
sketch6.addConstraint(Sketcher.Constraint("DistanceY", -1, 1, 0, 2, Q("41 mm")))
sketch6.addConstraint(Sketcher.Constraint("DistanceY", -1, 1, 4, 2, Q("36 mm")))
sketch6.setExpression("Constraints[19]", "Params.sketch6_width")
sketch6.setExpression("Constraints[20]", "Params.sketch6_height")
pocket1 = doc.addObject("PartDesign::Pocket", "Pocket")
body.addObject(pocket1)
pocket1.Profile = sketch6
pocket1.setExpression("Length", "Params.pocket1_length")

sketch7 = doc.addObject("Sketcher::SketchObject", "Sketch006")
body.addObject(sketch7)
sketch7.AttachmentSupport = (doc.XZ_Plane, [""])
sketch7.MapMode = "FlatFace"
sketch7.AttachmentOffset = App.Placement(V(0, 0, -3), App.Rotation())
sketch7.addGeometry(Part.Circle(V(138, 43.5, 0), V(0, 0, 1), 0.4), False)
sketch7.addGeometry(Part.Circle(V(138, 41.5, 0), V(0, 0, 1), 0.4), False)
sketch7.addGeometry(Part.Circle(V(138, 36.5, 0), V(0, 0, 1), 0.4), False)
sketch7.addGeometry(Part.Circle(V(138, 38.5, 0), V(0, 0, 1), 0.4), False)
sketch7.addConstraint(Sketcher.Constraint("Equal", 0, 1))
sketch7.addConstraint(Sketcher.Constraint("Equal", 1, 2))
sketch7.addConstraint(Sketcher.Constraint("Equal", 2, 3))
sketch7.addConstraint(Sketcher.Constraint("Vertical", 0, 3, 1, 3))
sketch7.addConstraint(Sketcher.Constraint("Vertical", 1, 3, 2, 3))
sketch7.addConstraint(Sketcher.Constraint("Vertical", 2, 3, 3, 3))
sketch7.addConstraint(Sketcher.Constraint("Diameter", 0, Q("0.8 mm")))
sketch7.addConstraint(Sketcher.Constraint("DistanceX", -1, 1, 0, 3, Q("138 mm")))
sketch7.addConstraint(Sketcher.Constraint("DistanceY", 1, 3, 0, 3, Q("2 mm")))
sketch7.addConstraint(Sketcher.Constraint("DistanceY", 2, 3, 1, 3, Q("5 mm")))
sketch7.addConstraint(Sketcher.Constraint("DistanceY", 2, 3, 3, 3, Q("2 mm")))
sketch7.addConstraint(Sketcher.Constraint("DistanceY", -1, 1, 0, 3, Q("43.5 mm")))
sketch7.setExpression("Constraints[6]", "Params.sketch7_diameter")
pocket2 = doc.addObject("PartDesign::Pocket", "Pocket001")
body.addObject(pocket2)
pocket2.Profile = sketch7
pocket2.setExpression("Length", "Params.pocket2_length")

sketch8 = doc.addObject("Sketcher::SketchObject", "Sketch007")
body.addObject(sketch8)
sketch8.AttachmentSupport = (doc.XZ_Plane, [""])
sketch8.MapMode = "FlatFace"
sketch8.AttachmentOffset = App.Placement(V(0, 0, -65), App.Rotation())
add_polygon(sketch8, [(36, 136), (36, 140), (39, 140), (39, 136)])
add_polygon(sketch8, [(41, 136), (41, 140), (44, 140), (44, 136)])
sketch8.addConstraint(Sketcher.Constraint("Vertical", 0))
sketch8.addConstraint(Sketcher.Constraint("Horizontal", 1))
sketch8.addConstraint(Sketcher.Constraint("Vertical", 2))
sketch8.addConstraint(Sketcher.Constraint("Horizontal", 3))
sketch8.addConstraint(Sketcher.Constraint("Vertical", 4))
sketch8.addConstraint(Sketcher.Constraint("Horizontal", 5))
sketch8.addConstraint(Sketcher.Constraint("Vertical", 6))
sketch8.addConstraint(Sketcher.Constraint("Horizontal", 7))
sketch8.addConstraint(Sketcher.Constraint("Horizontal", 1, 2, 4, 2))
sketch8.addConstraint(Sketcher.Constraint("Horizontal", 3, 2, 6, 2))
sketch8.addConstraint(Sketcher.Constraint("Equal", 3, 5))
sketch8.addConstraint(Sketcher.Constraint("DistanceX", 1, 1, 1, 2, Q("3 mm")))
sketch8.addConstraint(Sketcher.Constraint("DistanceY", 0, 1, 0, 2, Q("4 mm")))
sketch8.addConstraint(Sketcher.Constraint("DistanceX", -1, 1, 0, 2, Q("36 mm")))
sketch8.addConstraint(Sketcher.Constraint("DistanceY", -1, 1, 0, 2, Q("140 mm")))
sketch8.addConstraint(Sketcher.Constraint("DistanceX", -1, 1, 4, 2, Q("41 mm")))
sketch8.setExpression("Constraints[19]", "Params.sketch8_width")
sketch8.setExpression("Constraints[20]", "Params.sketch8_height")
pocket3 = doc.addObject("PartDesign::Pocket", "Pocket002")
body.addObject(pocket3)
pocket3.Profile = sketch8
pocket3.setExpression("Length", "Params.pocket3_length")
pocket3.Reversed = True

sketch9 = doc.addObject("Sketcher::SketchObject", "Sketch008")
body.addObject(sketch9)
sketch9.AttachmentSupport = (doc.XZ_Plane, [""])
sketch9.MapMode = "FlatFace"
sketch9.AttachmentOffset = App.Placement(V(0, 0, -62), App.Rotation())
sketch9.addGeometry(Part.Circle(V(43.5, 138, 0), V(0, 0, 1), 0.4), False)
sketch9.addGeometry(Part.Circle(V(41.5, 138, 0), V(0, 0, 1), 0.4), False)
sketch9.addGeometry(Part.Circle(V(36.5, 138, 0), V(0, 0, 1), 0.4), False)
sketch9.addGeometry(Part.Circle(V(38.5, 138, 0), V(0, 0, 1), 0.4), False)
sketch9.addConstraint(Sketcher.Constraint("Equal", 0, 1))
sketch9.addConstraint(Sketcher.Constraint("Equal", 1, 2))
sketch9.addConstraint(Sketcher.Constraint("Equal", 2, 3))
sketch9.addConstraint(Sketcher.Constraint("Horizontal", 0, 3, 1, 3))
sketch9.addConstraint(Sketcher.Constraint("Horizontal", 1, 3, 2, 3))
sketch9.addConstraint(Sketcher.Constraint("Horizontal", 2, 3, 3, 3))
sketch9.addConstraint(Sketcher.Constraint("Diameter", 0, Q("0.8 mm")))
sketch9.addConstraint(Sketcher.Constraint("DistanceY", -1, 1, 0, 3, Q("138 mm")))
sketch9.addConstraint(Sketcher.Constraint("DistanceX", 1, 3, 0, 3, Q("2 mm")))
sketch9.addConstraint(Sketcher.Constraint("DistanceX", 2, 3, 1, 3, Q("5 mm")))
sketch9.addConstraint(Sketcher.Constraint("DistanceX", 2, 3, 3, 3, Q("2 mm")))
sketch9.addConstraint(Sketcher.Constraint("DistanceX", -1, 1, 0, 3, Q("43.5 mm")))
sketch9.setExpression("Constraints[6]", "Params.sketch9_diameter")
pocket4 = doc.addObject("PartDesign::Pocket", "Pocket003")
body.addObject(pocket4)
pocket4.Profile = sketch9
pocket4.setExpression("Length", "Params.pocket4_length")
pocket4.Reversed = True

doc.recompute()
